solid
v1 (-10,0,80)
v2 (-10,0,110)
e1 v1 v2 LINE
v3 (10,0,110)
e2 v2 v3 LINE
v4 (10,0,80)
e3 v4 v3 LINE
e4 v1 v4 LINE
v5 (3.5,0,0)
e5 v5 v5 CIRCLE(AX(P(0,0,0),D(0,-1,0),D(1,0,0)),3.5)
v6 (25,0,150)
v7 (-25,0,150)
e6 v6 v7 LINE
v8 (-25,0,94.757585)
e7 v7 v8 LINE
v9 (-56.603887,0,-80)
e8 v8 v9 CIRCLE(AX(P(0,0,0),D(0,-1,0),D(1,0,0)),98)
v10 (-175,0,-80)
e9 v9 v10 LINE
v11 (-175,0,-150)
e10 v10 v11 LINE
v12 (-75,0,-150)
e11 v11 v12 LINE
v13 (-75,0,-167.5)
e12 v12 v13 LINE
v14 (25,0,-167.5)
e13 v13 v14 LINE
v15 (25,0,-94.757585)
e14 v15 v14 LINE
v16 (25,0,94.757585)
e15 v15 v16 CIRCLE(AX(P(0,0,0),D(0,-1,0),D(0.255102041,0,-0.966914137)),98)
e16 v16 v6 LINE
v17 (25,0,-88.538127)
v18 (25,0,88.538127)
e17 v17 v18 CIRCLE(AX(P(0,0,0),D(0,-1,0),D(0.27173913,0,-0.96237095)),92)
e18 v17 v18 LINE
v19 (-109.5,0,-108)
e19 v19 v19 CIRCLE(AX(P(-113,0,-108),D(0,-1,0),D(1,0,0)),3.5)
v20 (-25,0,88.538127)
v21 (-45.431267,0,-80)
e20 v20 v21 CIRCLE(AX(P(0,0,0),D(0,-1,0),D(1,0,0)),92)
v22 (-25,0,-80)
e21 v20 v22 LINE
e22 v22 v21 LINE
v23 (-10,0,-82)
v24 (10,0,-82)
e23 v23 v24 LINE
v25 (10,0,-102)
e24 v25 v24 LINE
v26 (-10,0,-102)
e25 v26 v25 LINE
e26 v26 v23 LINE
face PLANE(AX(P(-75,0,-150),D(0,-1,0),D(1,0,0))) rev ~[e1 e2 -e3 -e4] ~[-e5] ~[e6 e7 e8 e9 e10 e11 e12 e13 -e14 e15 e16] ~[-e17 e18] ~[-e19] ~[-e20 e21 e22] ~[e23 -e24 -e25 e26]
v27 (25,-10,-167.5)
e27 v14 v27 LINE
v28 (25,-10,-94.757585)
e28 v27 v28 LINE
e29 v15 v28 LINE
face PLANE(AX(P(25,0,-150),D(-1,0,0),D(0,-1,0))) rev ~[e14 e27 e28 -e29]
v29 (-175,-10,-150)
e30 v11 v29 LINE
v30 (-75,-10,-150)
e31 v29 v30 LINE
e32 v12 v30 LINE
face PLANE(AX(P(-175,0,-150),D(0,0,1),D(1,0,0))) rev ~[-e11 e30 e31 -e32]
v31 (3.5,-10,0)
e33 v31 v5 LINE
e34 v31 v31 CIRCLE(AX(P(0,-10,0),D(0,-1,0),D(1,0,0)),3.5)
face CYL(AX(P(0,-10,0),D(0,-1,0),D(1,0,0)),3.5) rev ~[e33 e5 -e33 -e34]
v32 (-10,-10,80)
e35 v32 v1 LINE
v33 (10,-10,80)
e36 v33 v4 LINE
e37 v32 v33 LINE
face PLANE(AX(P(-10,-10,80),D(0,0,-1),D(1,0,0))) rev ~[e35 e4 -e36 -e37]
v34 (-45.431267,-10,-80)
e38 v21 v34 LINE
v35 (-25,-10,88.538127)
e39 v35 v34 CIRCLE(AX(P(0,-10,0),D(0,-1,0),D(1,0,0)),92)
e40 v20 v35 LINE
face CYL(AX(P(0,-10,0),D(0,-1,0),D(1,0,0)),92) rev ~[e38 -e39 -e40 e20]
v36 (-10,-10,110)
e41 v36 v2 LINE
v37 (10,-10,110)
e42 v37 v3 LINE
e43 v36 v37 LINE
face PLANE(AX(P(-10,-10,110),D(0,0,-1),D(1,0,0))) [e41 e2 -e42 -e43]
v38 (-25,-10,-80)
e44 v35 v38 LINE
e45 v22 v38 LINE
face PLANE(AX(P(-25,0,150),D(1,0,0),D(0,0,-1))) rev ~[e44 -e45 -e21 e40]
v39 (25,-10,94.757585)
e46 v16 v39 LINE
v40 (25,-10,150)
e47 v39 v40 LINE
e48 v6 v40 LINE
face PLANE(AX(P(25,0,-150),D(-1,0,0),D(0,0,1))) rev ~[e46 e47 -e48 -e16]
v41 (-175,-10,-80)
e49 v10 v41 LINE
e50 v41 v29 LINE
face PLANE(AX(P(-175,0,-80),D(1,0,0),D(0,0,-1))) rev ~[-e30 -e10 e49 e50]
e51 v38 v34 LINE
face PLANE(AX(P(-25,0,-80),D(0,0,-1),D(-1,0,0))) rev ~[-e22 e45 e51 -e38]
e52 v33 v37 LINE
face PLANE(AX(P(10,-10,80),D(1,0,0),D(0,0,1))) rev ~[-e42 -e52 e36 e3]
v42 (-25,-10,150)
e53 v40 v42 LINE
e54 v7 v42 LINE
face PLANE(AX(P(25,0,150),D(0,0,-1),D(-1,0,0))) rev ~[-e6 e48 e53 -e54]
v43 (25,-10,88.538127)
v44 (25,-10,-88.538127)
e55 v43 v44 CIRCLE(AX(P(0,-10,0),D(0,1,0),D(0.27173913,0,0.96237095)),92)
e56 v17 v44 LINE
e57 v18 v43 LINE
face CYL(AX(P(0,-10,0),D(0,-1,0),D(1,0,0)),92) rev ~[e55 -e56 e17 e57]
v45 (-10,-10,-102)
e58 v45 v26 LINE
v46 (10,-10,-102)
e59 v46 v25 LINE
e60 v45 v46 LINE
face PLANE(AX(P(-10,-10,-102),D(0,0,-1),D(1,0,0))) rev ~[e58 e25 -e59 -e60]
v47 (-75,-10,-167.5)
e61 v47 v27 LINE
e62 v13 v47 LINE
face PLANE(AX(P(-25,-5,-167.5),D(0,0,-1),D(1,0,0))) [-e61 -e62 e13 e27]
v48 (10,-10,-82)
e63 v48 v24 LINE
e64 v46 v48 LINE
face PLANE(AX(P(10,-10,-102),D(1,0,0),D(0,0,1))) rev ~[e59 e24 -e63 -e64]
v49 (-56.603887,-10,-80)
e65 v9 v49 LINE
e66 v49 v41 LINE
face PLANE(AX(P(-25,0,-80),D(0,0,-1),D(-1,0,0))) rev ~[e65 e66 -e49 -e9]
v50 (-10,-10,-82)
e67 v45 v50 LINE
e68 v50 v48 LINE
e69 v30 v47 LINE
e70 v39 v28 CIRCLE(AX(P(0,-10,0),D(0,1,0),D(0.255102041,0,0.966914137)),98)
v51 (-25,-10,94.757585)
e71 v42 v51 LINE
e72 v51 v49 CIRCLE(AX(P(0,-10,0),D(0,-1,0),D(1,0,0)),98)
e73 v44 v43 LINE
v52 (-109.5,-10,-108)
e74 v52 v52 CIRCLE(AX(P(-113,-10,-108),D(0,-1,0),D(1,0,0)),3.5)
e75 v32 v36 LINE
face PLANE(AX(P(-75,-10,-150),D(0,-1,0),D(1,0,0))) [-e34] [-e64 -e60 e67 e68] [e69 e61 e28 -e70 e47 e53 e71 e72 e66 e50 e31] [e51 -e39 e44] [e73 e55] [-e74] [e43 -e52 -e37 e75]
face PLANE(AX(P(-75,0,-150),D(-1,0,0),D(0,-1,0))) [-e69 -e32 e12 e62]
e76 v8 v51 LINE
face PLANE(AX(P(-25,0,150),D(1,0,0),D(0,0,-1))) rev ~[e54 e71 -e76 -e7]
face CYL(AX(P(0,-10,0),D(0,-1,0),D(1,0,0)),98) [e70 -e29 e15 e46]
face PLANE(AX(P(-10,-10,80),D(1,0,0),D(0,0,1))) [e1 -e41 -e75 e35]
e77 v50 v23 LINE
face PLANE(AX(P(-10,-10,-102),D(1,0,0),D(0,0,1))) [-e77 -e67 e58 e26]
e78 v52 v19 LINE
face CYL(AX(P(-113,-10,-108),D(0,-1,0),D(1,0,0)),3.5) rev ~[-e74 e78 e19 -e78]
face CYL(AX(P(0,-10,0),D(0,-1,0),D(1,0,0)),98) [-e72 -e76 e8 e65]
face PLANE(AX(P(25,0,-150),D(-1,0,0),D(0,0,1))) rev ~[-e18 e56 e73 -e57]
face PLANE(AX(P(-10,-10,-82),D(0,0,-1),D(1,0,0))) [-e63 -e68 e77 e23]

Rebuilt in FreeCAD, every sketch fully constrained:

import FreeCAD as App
import Part
import Sketcher
Q = App.Units.Quantity

doc = App.newDocument("Part")
body = doc.addObject("PartDesign::Body", "Body")

sketch1 = doc.addObject("Sketcher::SketchObject", "Sketch")
body.addObject(sketch1)
sketch1.AttachmentSupport = (doc.XZ_Plane, [""])
sketch1.MapMode = "FlatFace"
sketch1.addGeometry(Part.LineSegment(App.Vector(25, 150, 0), App.Vector(-25, 150, 0)), False)
sketch1.addGeometry(Part.LineSegment(App.Vector(-25, 150, 0), App.Vector(-25, -80, 0)), False)
sketch1.addGeometry(Part.LineSegment(App.Vector(-25, -80, 0), App.Vector(-175, -80, 0)), False)
sketch1.addGeometry(Part.LineSegment(App.Vector(-175, -80, 0), App.Vector(-175, -150, 0)), False)
sketch1.addGeometry(Part.LineSegment(App.Vector(-175, -150, 0), App.Vector(25, -150, 0)), False)
sketch1.addGeometry(Part.LineSegment(App.Vector(25, -150, 0), App.Vector(25, 150, 0)), False)
sketch1.addConstraint(Sketcher.Constraint("Coincident", 0, 2, 1, 1))
sketch1.addConstraint(Sketcher.Constraint("Coincident", 1, 2, 2, 1))
sketch1.addConstraint(Sketcher.Constraint("Coincident", 2, 2, 3, 1))
sketch1.addConstraint(Sketcher.Constraint("Coincident", 3, 2, 4, 1))
sketch1.addConstraint(Sketcher.Constraint("Coincident", 4, 2, 5, 1))
sketch1.addConstraint(Sketcher.Constraint("Coincident", 5, 2, 0, 1))
sketch1.addConstraint(Sketcher.Constraint("Horizontal", 0))
sketch1.addConstraint(Sketcher.Constraint("Vertical", 1))
sketch1.addConstraint(Sketcher.Constraint("Horizontal", 2))
sketch1.addConstraint(Sketcher.Constraint("Vertical", 3))
sketch1.addConstraint(Sketcher.Constraint("Horizontal", 4))
sketch1.addConstraint(Sketcher.Constraint("Vertical", 5))
sketch1.addConstraint(Sketcher.Constraint("Symmetric", 0, 2, 4, 2, -1, 1))
sketch1.addConstraint(Sketcher.Constraint("DistanceX", 0, 2, 0, 1, Q("50 mm")))
sketch1.addConstraint(Sketcher.Constraint("DistanceX", 2, 2, 2, 1, Q("150 mm")))
sketch1.addConstraint(Sketcher.Constraint("DistanceY", 1, 2, 1, 1, Q("230 mm")))
sketch1.addConstraint(Sketcher.Constraint("DistanceY", 3, 2, 3, 1, Q("70 mm")))
pad1 = doc.addObject("PartDesign::Pad", "Pad")
body.addObject(pad1)
pad1.Profile = sketch1
pad1.Length = 10

sketch2 = doc.addObject("Sketcher::SketchObject", "Sketch001")
body.addObject(sketch2)
sketch2.AttachmentSupport = (doc.XZ_Plane, [""])
sketch2.MapMode = "FlatFace"
sketch2.AttachmentOffset = App.Placement(App.Vector(0, 0, 10), App.Rotation())
sketch2.addGeometry(Part.Circle(App.Vector(0, 0, 0), App.Vector(0, 0, 1), 98), False)
sketch2.addGeometry(Part.Circle(App.Vector(0, 0, 0), App.Vector(0, 0, 1), 92), False)
sketch2.addConstraint(Sketcher.Constraint("Coincident", 0, 3, -1, 1))
sketch2.addConstraint(Sketcher.Constraint("Coincident", 1, 3, -1, 1))
sketch2.addConstraint(Sketcher.Constraint("Diameter", 0, Q("196 mm")))
sketch2.addConstraint(Sketcher.Constraint("Diameter", 1, Q("184 mm")))
pad2 = doc.addObject("PartDesign::Pad", "Pad001")
body.addObject(pad2)
pad2.Profile = sketch2
pad2.Length = 10
pad2.Reversed = True

sketch3 = doc.addObject("Sketcher::SketchObject", "Sketch002")
body.addObject(sketch3)
sketch3.AttachmentSupport = (doc.XY_Plane, [""])
sketch3.MapMode = "FlatFace"
sketch3.AttachmentOffset = App.Placement(App.Vector(0, 0, -150), App.Rotation())
sketch3.addGeometry(Part.LineSegment(App.Vector(-75, -10, 0), App.Vector(-75, 0, 0)), False)
sketch3.addGeometry(Part.LineSegment(App.Vector(-75, 0, 0), App.Vector(25, 0, 0)), False)
sketch3.addGeometry(Part.LineSegment(App.Vector(25, 0, 0), App.Vector(25, -10, 0)), False)
sketch3.addGeometry(Part.LineSegment(App.Vector(25, -10, 0), App.Vector(-75, -10, 0)), False)
sketch3.addConstraint(Sketcher.Constraint("Coincident", 0, 2, 1, 1))
sketch3.addConstraint(Sketcher.Constraint("Coincident", 1, 2, 2, 1))
sketch3.addConstraint(Sketcher.Constraint("Coincident", 2, 2, 3, 1))
sketch3.addConstraint(Sketcher.Constraint("Coincident", 3, 2, 0, 1))
sketch3.addConstraint(Sketcher.Constraint("Vertical", 0))
sketch3.addConstraint(Sketcher.Constraint("Horizontal", 1))
sketch3.addConstraint(Sketcher.Constraint("Vertical", 2))
sketch3.addConstraint(Sketcher.Constraint("Horizontal", 3))
sketch3.addConstraint(Sketcher.Constraint("PointOnObject", 0, 2, -1))
sketch3.addConstraint(Sketcher.Constraint("DistanceX", 1, 1, 1, 2, Q("100 mm")))
sketch3.addConstraint(Sketcher.Constraint("DistanceY", 0, 1, 0, 2, Q("10 mm")))
sketch3.addConstraint(Sketcher.Constraint("DistanceX", 0, 2, -1, 1, Q("75 mm")))
pad3 = doc.addObject("PartDesign::Pad", "Pad002")
body.addObject(pad3)
pad3.Profile = sketch3
pad3.Length = 17.5
pad3.Reversed = True

sketch4 = doc.addObject("Sketcher::SketchObject", "Sketch003")
body.addObject(sketch4)
sketch4.AttachmentSupport = (doc.XZ_Plane, [""])
sketch4.MapMode = "FlatFace"
sketch4.AttachmentOffset = App.Placement(App.Vector(0, 0, 10), App.Rotation())
sketch4.addGeometry(Part.LineSegment(App.Vector(-10, -82, 0), App.Vector(-10, -102, 0)), False)
sketch4.addGeometry(Part.LineSegment(App.Vector(-10, -102, 0), App.Vector(10, -102, 0)), False)
sketch4.addGeometry(Part.LineSegment(App.Vector(10, -102, 0), App.Vector(10, -82, 0)), False)
sketch4.addGeometry(Part.LineSegment(App.Vector(10, -82, 0), App.Vector(-10, -82, 0)), False)
sketch4.addGeometry(Part.LineSegment(App.Vector(-10, 110, 0), App.Vector(-10, 80, 0)), False)
sketch4.addGeometry(Part.LineSegment(App.Vector(-10, 80, 0), App.Vector(10, 80, 0)), False)
sketch4.addGeometry(Part.LineSegment(App.Vector(10, 80, 0), App.Vector(10, 110, 0)), False)
sketch4.addGeometry(Part.LineSegment(App.Vector(10, 110, 0), App.Vector(-10, 110, 0)), False)
sketch4.addGeometry(Part.Circle(App.Vector(0, 0, 0), App.Vector(0, 0, 1), 3.5), False)
sketch4.addGeometry(Part.Circle(App.Vector(-113, -108, 0), App.Vector(0, 0, 1), 3.5), False)
sketch4.addConstraint(Sketcher.Constraint("Coincident", 0, 2, 1, 1))
sketch4.addConstraint(Sketcher.Constraint("Coincident", 1, 2, 2, 1))
sketch4.addConstraint(Sketcher.Constraint("Coincident", 2, 2, 3, 1))
sketch4.addConstraint(Sketcher.Constraint("Coincident", 3, 2, 0, 1))
sketch4.addConstraint(Sketcher.Constraint("Coincident", 4, 2, 5, 1))
sketch4.addConstraint(Sketcher.Constraint("Coincident", 5, 2, 6, 1))
sketch4.addConstraint(Sketcher.Constraint("Coincident", 6, 2, 7, 1))
sketch4.addConstraint(Sketcher.Constraint("Coincident", 7, 2, 4, 1))
sketch4.addConstraint(Sketcher.Constraint("Vertical", 0))
sketch4.addConstraint(Sketcher.Constraint("Horizontal", 1))
sketch4.addConstraint(Sketcher.Constraint("Vertical", 2))
sketch4.addConstraint(Sketcher.Constraint("Horizontal", 3))
sketch4.addConstraint(Sketcher.Constraint("Vertical", 4))
sketch4.addConstraint(Sketcher.Constraint("Horizontal", 5))
sketch4.addConstraint(Sketcher.Constraint("Vertical", 6))
sketch4.addConstraint(Sketcher.Constraint("Horizontal", 7))
sketch4.addConstraint(Sketcher.Constraint("Coincident", 8, 3, -1, 1))
sketch4.addConstraint(Sketcher.Constraint("Equal", 8, 9))
sketch4.addConstraint(Sketcher.Constraint("Vertical", 3, 2, 4, 2))
sketch4.addConstraint(Sketcher.Constraint("Vertical", 2, 2, 5, 2))
sketch4.addConstraint(Sketcher.Constraint("Equal", 7, 0))
sketch4.addConstraint(Sketcher.Constraint("Diameter", 8, Q("7 mm")))
sketch4.addConstraint(Sketcher.Constraint("DistanceX", 1, 1, 1, 2, Q("20 mm")))
sketch4.addConstraint(Sketcher.Constraint("DistanceY", 4, 2, 4, 1, Q("30 mm")))
sketch4.addConstraint(Sketcher.Constraint("DistanceX", 9, 3, -1, 1, Q("113 mm")))
sketch4.addConstraint(Sketcher.Constraint("DistanceY", 9, 3, -1, 1, Q("108 mm")))
sketch4.addConstraint(Sketcher.Constraint("DistanceX", 0, 2, -1, 1, Q("10 mm")))
sketch4.addConstraint(Sketcher.Constraint("DistanceY", 0, 2, -1, 1, Q("102 mm")))
sketch4.addConstraint(Sketcher.Constraint("DistanceY", -1, 1, 4, 2, Q("80 mm")))
pocket1 = doc.addObject("PartDesign::Pocket", "Pocket")
body.addObject(pocket1)
pocket1.Profile = sketch4
pocket1.Length = 10

doc.recompute()
